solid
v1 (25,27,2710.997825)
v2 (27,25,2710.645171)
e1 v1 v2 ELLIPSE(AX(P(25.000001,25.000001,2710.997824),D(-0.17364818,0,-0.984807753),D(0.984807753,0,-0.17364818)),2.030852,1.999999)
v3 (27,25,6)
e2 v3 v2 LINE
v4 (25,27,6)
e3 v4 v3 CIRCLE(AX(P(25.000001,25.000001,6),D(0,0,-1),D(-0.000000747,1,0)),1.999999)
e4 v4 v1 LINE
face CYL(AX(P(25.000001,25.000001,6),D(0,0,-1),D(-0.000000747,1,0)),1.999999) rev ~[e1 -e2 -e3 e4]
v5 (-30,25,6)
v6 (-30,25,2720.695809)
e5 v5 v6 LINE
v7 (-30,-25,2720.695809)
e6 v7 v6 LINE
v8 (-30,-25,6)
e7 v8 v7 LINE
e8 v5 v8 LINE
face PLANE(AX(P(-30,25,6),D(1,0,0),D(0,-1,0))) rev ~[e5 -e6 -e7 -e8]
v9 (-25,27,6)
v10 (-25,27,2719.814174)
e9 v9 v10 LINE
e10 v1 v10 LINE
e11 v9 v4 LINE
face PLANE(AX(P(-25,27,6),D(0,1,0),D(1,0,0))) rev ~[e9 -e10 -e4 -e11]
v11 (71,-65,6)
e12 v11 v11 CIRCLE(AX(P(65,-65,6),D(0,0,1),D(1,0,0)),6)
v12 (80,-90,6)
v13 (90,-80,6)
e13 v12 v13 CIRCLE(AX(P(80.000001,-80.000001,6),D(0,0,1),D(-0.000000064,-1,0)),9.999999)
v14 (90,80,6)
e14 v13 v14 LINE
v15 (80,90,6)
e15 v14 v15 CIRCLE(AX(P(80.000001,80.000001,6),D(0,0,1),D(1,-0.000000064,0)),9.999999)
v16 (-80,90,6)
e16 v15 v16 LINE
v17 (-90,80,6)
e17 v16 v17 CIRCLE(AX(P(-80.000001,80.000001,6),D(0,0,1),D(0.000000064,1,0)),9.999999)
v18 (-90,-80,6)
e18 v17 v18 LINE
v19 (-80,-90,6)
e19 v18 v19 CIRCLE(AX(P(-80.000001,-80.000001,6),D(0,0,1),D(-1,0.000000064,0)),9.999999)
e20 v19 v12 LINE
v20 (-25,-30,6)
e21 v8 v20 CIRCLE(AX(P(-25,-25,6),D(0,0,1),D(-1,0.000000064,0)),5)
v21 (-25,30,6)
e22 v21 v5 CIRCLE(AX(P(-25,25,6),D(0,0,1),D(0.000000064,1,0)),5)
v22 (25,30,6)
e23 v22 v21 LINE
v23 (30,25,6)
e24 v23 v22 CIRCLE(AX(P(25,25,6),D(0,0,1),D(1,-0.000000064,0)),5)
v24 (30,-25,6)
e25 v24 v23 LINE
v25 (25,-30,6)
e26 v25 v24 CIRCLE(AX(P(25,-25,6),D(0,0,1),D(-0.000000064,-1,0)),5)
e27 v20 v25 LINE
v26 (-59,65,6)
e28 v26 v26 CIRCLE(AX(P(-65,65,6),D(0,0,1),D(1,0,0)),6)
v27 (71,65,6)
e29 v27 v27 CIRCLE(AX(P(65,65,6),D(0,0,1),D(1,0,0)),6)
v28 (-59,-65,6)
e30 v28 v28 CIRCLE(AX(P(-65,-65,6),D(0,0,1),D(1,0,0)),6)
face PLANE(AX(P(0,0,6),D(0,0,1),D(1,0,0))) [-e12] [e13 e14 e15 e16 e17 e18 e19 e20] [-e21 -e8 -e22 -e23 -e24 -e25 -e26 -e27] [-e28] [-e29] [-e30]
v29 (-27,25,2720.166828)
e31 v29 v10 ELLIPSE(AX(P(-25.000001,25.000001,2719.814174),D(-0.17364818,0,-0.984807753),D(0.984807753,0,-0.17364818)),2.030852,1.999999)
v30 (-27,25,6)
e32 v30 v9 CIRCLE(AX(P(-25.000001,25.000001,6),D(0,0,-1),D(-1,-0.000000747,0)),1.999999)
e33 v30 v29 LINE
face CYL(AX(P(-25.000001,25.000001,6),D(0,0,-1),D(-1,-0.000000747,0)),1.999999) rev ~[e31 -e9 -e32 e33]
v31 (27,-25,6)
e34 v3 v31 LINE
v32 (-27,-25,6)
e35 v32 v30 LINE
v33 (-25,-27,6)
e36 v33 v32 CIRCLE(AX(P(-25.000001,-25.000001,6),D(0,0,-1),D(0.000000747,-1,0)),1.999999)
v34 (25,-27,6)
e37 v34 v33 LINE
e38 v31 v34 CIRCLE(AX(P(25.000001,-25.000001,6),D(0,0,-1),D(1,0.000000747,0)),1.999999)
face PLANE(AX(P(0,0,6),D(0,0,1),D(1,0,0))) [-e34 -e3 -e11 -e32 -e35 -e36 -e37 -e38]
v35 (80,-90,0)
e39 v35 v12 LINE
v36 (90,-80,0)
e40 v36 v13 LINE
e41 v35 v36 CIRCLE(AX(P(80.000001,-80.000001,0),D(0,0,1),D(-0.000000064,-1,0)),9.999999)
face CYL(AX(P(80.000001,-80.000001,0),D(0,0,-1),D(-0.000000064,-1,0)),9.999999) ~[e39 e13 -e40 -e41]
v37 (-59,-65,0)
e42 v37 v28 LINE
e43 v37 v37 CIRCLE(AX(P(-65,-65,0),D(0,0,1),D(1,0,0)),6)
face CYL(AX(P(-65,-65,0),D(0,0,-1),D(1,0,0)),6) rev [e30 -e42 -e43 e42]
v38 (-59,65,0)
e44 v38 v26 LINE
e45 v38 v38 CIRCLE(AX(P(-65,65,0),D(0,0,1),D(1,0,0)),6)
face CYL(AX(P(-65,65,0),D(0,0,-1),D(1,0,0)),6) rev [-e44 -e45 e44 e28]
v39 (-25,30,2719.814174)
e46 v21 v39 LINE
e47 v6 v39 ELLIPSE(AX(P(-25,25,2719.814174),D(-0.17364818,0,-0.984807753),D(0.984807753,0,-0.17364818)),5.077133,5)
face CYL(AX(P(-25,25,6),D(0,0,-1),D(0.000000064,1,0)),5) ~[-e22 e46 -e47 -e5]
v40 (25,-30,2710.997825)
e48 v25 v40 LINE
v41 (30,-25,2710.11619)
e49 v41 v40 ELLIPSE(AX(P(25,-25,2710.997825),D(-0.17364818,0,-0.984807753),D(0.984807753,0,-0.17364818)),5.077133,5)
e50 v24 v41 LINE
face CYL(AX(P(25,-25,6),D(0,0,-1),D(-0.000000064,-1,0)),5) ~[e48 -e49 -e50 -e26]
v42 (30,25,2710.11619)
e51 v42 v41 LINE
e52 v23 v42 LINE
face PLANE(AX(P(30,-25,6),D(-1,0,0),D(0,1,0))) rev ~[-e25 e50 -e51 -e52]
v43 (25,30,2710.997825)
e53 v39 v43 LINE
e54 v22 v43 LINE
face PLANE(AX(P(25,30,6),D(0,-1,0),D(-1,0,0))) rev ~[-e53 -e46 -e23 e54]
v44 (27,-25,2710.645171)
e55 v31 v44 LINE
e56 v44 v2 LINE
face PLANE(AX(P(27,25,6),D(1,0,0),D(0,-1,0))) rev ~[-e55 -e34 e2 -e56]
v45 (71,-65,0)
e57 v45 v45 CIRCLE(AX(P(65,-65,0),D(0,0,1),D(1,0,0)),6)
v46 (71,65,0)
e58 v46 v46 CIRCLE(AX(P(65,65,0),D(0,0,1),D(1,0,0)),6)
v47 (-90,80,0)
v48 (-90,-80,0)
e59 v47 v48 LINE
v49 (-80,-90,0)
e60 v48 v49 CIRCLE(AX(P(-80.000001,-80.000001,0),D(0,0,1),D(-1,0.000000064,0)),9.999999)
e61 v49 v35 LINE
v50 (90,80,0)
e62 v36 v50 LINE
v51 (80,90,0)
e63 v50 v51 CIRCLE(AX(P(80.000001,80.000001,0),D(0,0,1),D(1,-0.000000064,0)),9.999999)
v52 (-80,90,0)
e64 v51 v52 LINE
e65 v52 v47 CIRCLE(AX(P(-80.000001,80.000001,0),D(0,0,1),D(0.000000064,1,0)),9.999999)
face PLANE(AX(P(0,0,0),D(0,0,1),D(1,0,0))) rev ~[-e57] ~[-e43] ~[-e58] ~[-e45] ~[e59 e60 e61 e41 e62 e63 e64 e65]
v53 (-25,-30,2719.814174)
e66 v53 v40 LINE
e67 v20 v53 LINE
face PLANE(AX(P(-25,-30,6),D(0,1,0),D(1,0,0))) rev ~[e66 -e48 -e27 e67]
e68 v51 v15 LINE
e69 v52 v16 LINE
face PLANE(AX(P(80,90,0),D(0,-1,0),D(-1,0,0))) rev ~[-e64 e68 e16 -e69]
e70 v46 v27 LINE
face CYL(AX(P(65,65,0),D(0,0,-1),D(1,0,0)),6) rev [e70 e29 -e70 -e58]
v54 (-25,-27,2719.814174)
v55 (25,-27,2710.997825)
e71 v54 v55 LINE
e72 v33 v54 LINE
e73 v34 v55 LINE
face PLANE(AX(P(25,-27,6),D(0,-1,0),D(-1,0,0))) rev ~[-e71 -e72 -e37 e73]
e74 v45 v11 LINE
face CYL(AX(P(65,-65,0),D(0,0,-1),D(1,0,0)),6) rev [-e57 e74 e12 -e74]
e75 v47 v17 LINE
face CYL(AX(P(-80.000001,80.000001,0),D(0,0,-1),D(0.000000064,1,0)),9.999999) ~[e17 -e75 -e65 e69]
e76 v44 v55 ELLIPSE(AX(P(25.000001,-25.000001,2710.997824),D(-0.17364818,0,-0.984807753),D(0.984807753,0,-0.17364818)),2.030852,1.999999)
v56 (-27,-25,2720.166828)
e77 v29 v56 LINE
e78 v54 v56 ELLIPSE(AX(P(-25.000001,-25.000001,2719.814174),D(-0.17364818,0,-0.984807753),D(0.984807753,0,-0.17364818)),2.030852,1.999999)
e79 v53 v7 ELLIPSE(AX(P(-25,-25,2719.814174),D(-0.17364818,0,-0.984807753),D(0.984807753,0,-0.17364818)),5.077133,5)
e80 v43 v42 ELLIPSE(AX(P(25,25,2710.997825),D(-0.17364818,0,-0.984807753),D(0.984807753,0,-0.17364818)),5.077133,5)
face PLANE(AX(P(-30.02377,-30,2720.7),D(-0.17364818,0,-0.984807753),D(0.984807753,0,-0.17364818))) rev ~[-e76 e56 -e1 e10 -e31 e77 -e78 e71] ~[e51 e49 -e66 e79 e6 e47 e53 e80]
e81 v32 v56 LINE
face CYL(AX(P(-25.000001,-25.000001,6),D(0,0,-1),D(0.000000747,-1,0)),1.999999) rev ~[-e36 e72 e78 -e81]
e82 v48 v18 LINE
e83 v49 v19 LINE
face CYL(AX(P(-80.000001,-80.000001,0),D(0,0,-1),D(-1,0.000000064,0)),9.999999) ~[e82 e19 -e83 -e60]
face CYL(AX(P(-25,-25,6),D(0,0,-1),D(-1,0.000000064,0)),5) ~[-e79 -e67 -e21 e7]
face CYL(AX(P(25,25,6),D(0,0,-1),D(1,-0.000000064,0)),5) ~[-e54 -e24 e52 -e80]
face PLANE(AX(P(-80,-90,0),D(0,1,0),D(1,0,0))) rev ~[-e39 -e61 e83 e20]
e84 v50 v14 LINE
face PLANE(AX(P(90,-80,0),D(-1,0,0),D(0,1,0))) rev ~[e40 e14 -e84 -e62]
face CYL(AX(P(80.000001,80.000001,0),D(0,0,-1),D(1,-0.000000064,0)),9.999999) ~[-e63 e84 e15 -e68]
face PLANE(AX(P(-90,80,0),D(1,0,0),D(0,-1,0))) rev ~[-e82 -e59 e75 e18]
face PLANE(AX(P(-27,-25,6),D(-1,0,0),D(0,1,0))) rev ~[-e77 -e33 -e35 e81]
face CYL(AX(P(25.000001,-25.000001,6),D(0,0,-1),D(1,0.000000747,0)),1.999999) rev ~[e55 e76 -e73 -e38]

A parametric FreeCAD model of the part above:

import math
import FreeCAD as App
import Part
import Sketcher

V = App.Vector
Q = App.Units.Quantity

doc = App.newDocument("Part")
params = doc.addObject("Spreadsheet::Sheet", "Params")
for row, (alias, value) in enumerate([
    ("sketch1_diameter", "12 mm"),
    ("sketch1_radius", "9.999999 mm"),
    ("sketch1_width", "160 mm"),
    ("pad1_length", "6 mm"),
    ("sketch2_radius", "5 mm"),
    ("sketch2_radius2", "1.999999 mm"),
    ("sketch2_width", "50 mm"),
    ("pad2_length", "2714.7 mm"),
], start=1):
    params.set(f"A{row}", alias)
    params.set(f"B{row}", "=" + value)
    params.setAlias(f"B{row}", alias)

body = doc.addObject("PartDesign::Body", "Body")

sketch1 = body.newObject("Sketcher::SketchObject", "Sketch")
sketch1.AttachmentSupport = (doc.getObject("XY_Plane"), [""])
sketch1.MapMode = "FlatFace"
sketch1.addGeometry([
    Part.ArcOfCircle(Part.Circle(V(80.000001, 80.000001, 0), V(0, 0, 1), 9.999999), math.radians(-0.000004), math.radians(90.000004)),
    Part.LineSegment(V(80, 90, 0), V(-80, 90, 0)),
    Part.ArcOfCircle(Part.Circle(V(-80.000001, 80.000001, 0), V(0, 0, 1), 9.999999), math.radians(89.999996), math.radians(180.000004)),
    Part.LineSegment(V(-90, 80, 0), V(-90, -80, 0)),
    Part.ArcOfCircle(Part.Circle(V(-80.000001, -80.000001, 0), V(0, 0, 1), 9.999999), math.radians(179.999996), math.radians(270.000004)),
    Part.LineSegment(V(-80, -90, 0), V(80, -90, 0)),
    Part.ArcOfCircle(Part.Circle(V(80.000001, -80.000001, 0), V(0, 0, 1), 9.999999), math.radians(-90.000004), math.radians(0.000004)),
    Part.LineSegment(V(90, -80, 0), V(90, 80, 0)),
    Part.Circle(V(-65, -65, 0), V(0, 0, 1), 6),
    Part.Circle(V(65, -65, 0), V(0, 0, 1), 6),
    Part.Circle(V(-65, 65, 0), V(0, 0, 1), 6),
    Part.Circle(V(65, 65, 0), V(0, 0, 1), 6),
], False)
sketch1.addConstraint([
    Sketcher.Constraint("Tangent", 0, 2, 1, 1),
    Sketcher.Constraint("Tangent", 1, 2, 2, 1),
    Sketcher.Constraint("Tangent", 2, 2, 3, 1),
    Sketcher.Constraint("Tangent", 3, 2, 4, 1),
    Sketcher.Constraint("Tangent", 4, 2, 5, 1),
    Sketcher.Constraint("Tangent", 5, 2, 6, 1),
    Sketcher.Constraint("Tangent", 6, 2, 7, 1),
    Sketcher.Constraint("Tangent", 7, 2, 0, 1),
    Sketcher.Constraint("Horizontal", 1),
    Sketcher.Constraint("Vertical", 3),
    Sketcher.Constraint("Horizontal", 5),
    Sketcher.Constraint("Vertical", 7),
    Sketcher.Constraint("Equal", 0, 2),
    Sketcher.Constraint("Equal", 2, 4),
    Sketcher.Constraint("Equal", 4, 6),
    Sketcher.Constraint("Equal", 8, 9),
    Sketcher.Constraint("Equal", 9, 10),
    Sketcher.Constraint("Equal", 10, 11),
    Sketcher.Constraint("Symmetric", 0, 3, 4, 3, -1, 1),
    Sketcher.Constraint("Symmetric", 9, 3, 10, 3, -1, 1),
    Sketcher.Constraint("Symmetric", 8, 3, 11, 3, -1, 1),
    Sketcher.Constraint("Symmetric", 8, 3, 9, 3, -2),
    Sketcher.Constraint("Equal", 5, 3),
    Sketcher.Constraint("Diameter", 8, 12.0),
    Sketcher.Constraint("Radius", 0, 9.999999),
    Sketcher.Constraint("DistanceX", 1, 2, 1, 1, 160.0),
    Sketcher.Constraint("DistanceX", 8, 3, -1, 1, 65.0),
    Sketcher.Constraint("DistanceY", 8, 3, -1, 1, 65.0),
])
sketch1.setExpression("Constraints[23]", "Params.sketch1_diameter")
sketch1.setExpression("Constraints[24]", "Params.sketch1_radius")
sketch1.setExpression("Constraints[25]", "Params.sketch1_width")
pad1 = body.newObject("PartDesign::Pad", "Pad")
pad1.Profile = sketch1
pad1.setExpression("Length", "Params.pad1_length")

sketch2 = body.newObject("Sketcher::SketchObject", "Sketch001")
sketch2.AttachmentSupport = (doc.getObject("XY_Plane"), [""])
sketch2.MapMode = "FlatFace"
sketch2.AttachmentOffset = App.Placement(V(0, 0, 6), App.Rotation())
sketch2.addGeometry([
    Part.LineSegment(V(-25, -30, 0), V(25, -30, 0)),
    Part.ArcOfCircle(Part.Circle(V(25, -25, 0), V(0, 0, 1), 5), math.radians(-90.000004), math.radians(0.000004)),
    Part.LineSegment(V(30, -25, 0), V(30, 25, 0)),
    Part.ArcOfCircle(Part.Circle(V(25, 25, 0), V(0, 0, 1), 5), math.radians(-0.000004), math.radians(90.000004)),
    Part.LineSegment(V(25, 30, 0), V(-25, 30, 0)),
    Part.ArcOfCircle(Part.Circle(V(-25, 25, 0), V(0, 0, 1), 5), math.radians(89.999996), math.radians(180.000004)),
    Part.LineSegment(V(-30, 25, 0), V(-30, -25, 0)),
    Part.ArcOfCircle(Part.Circle(V(-25, -25, 0), V(0, 0, 1), 5), math.radians(179.999996), math.radians(270.000004)),
    Part.LineSegment(V(-25, 27, 0), V(25, 27, 0)),
    Part.ArcOfCircle(Part.Circle(V(25.000001, 25.000001, 0), V(0, 0, 1), 1.999999), math.radians(-0.000043), math.radians(90.000043)),
    Part.LineSegment(V(27, 25, 0), V(27, -25, 0)),
    Part.ArcOfCircle(Part.Circle(V(25.000001, -25.000001, 0), V(0, 0, 1), 1.999999), math.radians(-90.000043), math.radians(0.000043)),
    Part.LineSegment(V(25, -27, 0), V(-25, -27, 0)),
    Part.ArcOfCircle(Part.Circle(V(-25.000001, -25.000001, 0), V(0, 0, 1), 1.999999), math.radians(179.999957), math.radians(270.000043)),
    Part.LineSegment(V(-27, -25, 0), V(-27, 25, 0)),
    Part.ArcOfCircle(Part.Circle(V(-25.000001, 25.000001, 0), V(0, 0, 1), 1.999999), math.radians(89.999957), math.radians(180.000043)),
], False)
sketch2.addConstraint([
    Sketcher.Constraint("Tangent", 0, 2, 1, 1),
    Sketcher.Constraint("Tangent", 1, 2, 2, 1),
    Sketcher.Constraint("Tangent", 2, 2, 3, 1),
    Sketcher.Constraint("Tangent", 3, 2, 4, 1),
    Sketcher.Constraint("Tangent", 4, 2, 5, 1),
    Sketcher.Constraint("Tangent", 5, 2, 6, 1),
    Sketcher.Constraint("Tangent", 6, 2, 7, 1),
    Sketcher.Constraint("Tangent", 7, 2, 0, 1),
    Sketcher.Constraint("Tangent", 8, 2, 9, 2),
    Sketcher.Constraint("Tangent", 9, 1, 10, 1),
    Sketcher.Constraint("Tangent", 10, 2, 11, 2),
    Sketcher.Constraint("Tangent", 11, 1, 12, 1),
    Sketcher.Constraint("Tangent", 12, 2, 13, 2),
    Sketcher.Constraint("Tangent", 13, 1, 14, 1),
    Sketcher.Constraint("Tangent", 14, 2, 15, 2),
    Sketcher.Constraint("Tangent", 15, 1, 8, 1),
    Sketcher.Constraint("Horizontal", 0),
    Sketcher.Constraint("Vertical", 2),
    Sketcher.Constraint("Horizontal", 4),
    Sketcher.Constraint("Vertical", 6),
    Sketcher.Constraint("Horizontal", 8),
    Sketcher.Constraint("Vertical", 10),
    Sketcher.Constraint("Horizontal", 12),
    Sketcher.Constraint("Vertical", 14),
    Sketcher.Constraint("Coincident", 9, 3, 3, 3),
    Sketcher.Constraint("Coincident", 11, 3, 1, 3),
    Sketcher.Constraint("Coincident", 13, 3, 7, 3),
    Sketcher.Constraint("Equal", 1, 3),
    Sketcher.Constraint("Equal", 3, 5),
    Sketcher.Constraint("Equal", 5, 7),
    Sketcher.Constraint("Equal", 13, 15),
    Sketcher.Constraint("Symmetric", 1, 3, 5, 3, -1, 1),
    Sketcher.Constraint("Equal", 12, 2),
    Sketcher.Constraint("Radius", 1, 5.0),
    Sketcher.Constraint("Radius", 9, 1.999999),
    Sketcher.Constraint("DistanceX", 0, 1, 0, 2, 50.0),
])
sketch2.setExpression("Constraints[33]", "Params.sketch2_radius")
sketch2.setExpression("Constraints[34]", "Params.sketch2_radius2")
sketch2.setExpression("Constraints[35]", "Params.sketch2_width")
pad2 = body.newObject("PartDesign::Pad", "Pad001")
pad2.Profile = sketch2
pad2.setExpression("Length", "Params.pad2_length")

sketch3 = body.newObject("Sketcher::SketchObject", "Sketch002")
sketch3.AttachmentSupport = (doc.getObject("XZ_Plane"), [""])
sketch3.MapMode = "FlatFace"
sketch3.AttachmentOffset = App.Placement(V(0, 0, 30), App.Rotation())
sketch3.addGeometry([
    Part.LineSegment(V(31.369732, 2720.7, 0), V(-30.02377, 2720.7, 0)),
    Part.LineSegment(V(-30.02377, 2720.7, 0), V(31.369732, 2709.874669, 0)),
    Part.LineSegment(V(31.369732, 2709.874669, 0), V(31.369732, 2720.7, 0)),
], False)
sketch3.addConstraint([
    Sketcher.Constraint("Coincident", 0, 2, 1, 1),
    Sketcher.Constraint("Coincident", 1, 2, 2, 1),
    Sketcher.Constraint("Coincident", 2, 2, 0, 1),
    Sketcher.Constraint("Horizontal", 0),
    Sketcher.Constraint("Vertical", 2),
    Sketcher.Constraint("Angle", 1, Q("-10 deg")),
    Sketcher.Constraint("DistanceY", -1, 1, 0, 2, 2720.7),
    Sketcher.Constraint("DistanceX", 0, 2, 0, 1, 61.393502),
    Sketcher.Constraint("DistanceX", 0, 2, -1, 1, 30.02377),
])
pocket1 = body.newObject("PartDesign::Pocket", "Pocket")
pocket1.Profile = sketch3
pocket1.Type = "ThroughAll"

doc.recompute()
